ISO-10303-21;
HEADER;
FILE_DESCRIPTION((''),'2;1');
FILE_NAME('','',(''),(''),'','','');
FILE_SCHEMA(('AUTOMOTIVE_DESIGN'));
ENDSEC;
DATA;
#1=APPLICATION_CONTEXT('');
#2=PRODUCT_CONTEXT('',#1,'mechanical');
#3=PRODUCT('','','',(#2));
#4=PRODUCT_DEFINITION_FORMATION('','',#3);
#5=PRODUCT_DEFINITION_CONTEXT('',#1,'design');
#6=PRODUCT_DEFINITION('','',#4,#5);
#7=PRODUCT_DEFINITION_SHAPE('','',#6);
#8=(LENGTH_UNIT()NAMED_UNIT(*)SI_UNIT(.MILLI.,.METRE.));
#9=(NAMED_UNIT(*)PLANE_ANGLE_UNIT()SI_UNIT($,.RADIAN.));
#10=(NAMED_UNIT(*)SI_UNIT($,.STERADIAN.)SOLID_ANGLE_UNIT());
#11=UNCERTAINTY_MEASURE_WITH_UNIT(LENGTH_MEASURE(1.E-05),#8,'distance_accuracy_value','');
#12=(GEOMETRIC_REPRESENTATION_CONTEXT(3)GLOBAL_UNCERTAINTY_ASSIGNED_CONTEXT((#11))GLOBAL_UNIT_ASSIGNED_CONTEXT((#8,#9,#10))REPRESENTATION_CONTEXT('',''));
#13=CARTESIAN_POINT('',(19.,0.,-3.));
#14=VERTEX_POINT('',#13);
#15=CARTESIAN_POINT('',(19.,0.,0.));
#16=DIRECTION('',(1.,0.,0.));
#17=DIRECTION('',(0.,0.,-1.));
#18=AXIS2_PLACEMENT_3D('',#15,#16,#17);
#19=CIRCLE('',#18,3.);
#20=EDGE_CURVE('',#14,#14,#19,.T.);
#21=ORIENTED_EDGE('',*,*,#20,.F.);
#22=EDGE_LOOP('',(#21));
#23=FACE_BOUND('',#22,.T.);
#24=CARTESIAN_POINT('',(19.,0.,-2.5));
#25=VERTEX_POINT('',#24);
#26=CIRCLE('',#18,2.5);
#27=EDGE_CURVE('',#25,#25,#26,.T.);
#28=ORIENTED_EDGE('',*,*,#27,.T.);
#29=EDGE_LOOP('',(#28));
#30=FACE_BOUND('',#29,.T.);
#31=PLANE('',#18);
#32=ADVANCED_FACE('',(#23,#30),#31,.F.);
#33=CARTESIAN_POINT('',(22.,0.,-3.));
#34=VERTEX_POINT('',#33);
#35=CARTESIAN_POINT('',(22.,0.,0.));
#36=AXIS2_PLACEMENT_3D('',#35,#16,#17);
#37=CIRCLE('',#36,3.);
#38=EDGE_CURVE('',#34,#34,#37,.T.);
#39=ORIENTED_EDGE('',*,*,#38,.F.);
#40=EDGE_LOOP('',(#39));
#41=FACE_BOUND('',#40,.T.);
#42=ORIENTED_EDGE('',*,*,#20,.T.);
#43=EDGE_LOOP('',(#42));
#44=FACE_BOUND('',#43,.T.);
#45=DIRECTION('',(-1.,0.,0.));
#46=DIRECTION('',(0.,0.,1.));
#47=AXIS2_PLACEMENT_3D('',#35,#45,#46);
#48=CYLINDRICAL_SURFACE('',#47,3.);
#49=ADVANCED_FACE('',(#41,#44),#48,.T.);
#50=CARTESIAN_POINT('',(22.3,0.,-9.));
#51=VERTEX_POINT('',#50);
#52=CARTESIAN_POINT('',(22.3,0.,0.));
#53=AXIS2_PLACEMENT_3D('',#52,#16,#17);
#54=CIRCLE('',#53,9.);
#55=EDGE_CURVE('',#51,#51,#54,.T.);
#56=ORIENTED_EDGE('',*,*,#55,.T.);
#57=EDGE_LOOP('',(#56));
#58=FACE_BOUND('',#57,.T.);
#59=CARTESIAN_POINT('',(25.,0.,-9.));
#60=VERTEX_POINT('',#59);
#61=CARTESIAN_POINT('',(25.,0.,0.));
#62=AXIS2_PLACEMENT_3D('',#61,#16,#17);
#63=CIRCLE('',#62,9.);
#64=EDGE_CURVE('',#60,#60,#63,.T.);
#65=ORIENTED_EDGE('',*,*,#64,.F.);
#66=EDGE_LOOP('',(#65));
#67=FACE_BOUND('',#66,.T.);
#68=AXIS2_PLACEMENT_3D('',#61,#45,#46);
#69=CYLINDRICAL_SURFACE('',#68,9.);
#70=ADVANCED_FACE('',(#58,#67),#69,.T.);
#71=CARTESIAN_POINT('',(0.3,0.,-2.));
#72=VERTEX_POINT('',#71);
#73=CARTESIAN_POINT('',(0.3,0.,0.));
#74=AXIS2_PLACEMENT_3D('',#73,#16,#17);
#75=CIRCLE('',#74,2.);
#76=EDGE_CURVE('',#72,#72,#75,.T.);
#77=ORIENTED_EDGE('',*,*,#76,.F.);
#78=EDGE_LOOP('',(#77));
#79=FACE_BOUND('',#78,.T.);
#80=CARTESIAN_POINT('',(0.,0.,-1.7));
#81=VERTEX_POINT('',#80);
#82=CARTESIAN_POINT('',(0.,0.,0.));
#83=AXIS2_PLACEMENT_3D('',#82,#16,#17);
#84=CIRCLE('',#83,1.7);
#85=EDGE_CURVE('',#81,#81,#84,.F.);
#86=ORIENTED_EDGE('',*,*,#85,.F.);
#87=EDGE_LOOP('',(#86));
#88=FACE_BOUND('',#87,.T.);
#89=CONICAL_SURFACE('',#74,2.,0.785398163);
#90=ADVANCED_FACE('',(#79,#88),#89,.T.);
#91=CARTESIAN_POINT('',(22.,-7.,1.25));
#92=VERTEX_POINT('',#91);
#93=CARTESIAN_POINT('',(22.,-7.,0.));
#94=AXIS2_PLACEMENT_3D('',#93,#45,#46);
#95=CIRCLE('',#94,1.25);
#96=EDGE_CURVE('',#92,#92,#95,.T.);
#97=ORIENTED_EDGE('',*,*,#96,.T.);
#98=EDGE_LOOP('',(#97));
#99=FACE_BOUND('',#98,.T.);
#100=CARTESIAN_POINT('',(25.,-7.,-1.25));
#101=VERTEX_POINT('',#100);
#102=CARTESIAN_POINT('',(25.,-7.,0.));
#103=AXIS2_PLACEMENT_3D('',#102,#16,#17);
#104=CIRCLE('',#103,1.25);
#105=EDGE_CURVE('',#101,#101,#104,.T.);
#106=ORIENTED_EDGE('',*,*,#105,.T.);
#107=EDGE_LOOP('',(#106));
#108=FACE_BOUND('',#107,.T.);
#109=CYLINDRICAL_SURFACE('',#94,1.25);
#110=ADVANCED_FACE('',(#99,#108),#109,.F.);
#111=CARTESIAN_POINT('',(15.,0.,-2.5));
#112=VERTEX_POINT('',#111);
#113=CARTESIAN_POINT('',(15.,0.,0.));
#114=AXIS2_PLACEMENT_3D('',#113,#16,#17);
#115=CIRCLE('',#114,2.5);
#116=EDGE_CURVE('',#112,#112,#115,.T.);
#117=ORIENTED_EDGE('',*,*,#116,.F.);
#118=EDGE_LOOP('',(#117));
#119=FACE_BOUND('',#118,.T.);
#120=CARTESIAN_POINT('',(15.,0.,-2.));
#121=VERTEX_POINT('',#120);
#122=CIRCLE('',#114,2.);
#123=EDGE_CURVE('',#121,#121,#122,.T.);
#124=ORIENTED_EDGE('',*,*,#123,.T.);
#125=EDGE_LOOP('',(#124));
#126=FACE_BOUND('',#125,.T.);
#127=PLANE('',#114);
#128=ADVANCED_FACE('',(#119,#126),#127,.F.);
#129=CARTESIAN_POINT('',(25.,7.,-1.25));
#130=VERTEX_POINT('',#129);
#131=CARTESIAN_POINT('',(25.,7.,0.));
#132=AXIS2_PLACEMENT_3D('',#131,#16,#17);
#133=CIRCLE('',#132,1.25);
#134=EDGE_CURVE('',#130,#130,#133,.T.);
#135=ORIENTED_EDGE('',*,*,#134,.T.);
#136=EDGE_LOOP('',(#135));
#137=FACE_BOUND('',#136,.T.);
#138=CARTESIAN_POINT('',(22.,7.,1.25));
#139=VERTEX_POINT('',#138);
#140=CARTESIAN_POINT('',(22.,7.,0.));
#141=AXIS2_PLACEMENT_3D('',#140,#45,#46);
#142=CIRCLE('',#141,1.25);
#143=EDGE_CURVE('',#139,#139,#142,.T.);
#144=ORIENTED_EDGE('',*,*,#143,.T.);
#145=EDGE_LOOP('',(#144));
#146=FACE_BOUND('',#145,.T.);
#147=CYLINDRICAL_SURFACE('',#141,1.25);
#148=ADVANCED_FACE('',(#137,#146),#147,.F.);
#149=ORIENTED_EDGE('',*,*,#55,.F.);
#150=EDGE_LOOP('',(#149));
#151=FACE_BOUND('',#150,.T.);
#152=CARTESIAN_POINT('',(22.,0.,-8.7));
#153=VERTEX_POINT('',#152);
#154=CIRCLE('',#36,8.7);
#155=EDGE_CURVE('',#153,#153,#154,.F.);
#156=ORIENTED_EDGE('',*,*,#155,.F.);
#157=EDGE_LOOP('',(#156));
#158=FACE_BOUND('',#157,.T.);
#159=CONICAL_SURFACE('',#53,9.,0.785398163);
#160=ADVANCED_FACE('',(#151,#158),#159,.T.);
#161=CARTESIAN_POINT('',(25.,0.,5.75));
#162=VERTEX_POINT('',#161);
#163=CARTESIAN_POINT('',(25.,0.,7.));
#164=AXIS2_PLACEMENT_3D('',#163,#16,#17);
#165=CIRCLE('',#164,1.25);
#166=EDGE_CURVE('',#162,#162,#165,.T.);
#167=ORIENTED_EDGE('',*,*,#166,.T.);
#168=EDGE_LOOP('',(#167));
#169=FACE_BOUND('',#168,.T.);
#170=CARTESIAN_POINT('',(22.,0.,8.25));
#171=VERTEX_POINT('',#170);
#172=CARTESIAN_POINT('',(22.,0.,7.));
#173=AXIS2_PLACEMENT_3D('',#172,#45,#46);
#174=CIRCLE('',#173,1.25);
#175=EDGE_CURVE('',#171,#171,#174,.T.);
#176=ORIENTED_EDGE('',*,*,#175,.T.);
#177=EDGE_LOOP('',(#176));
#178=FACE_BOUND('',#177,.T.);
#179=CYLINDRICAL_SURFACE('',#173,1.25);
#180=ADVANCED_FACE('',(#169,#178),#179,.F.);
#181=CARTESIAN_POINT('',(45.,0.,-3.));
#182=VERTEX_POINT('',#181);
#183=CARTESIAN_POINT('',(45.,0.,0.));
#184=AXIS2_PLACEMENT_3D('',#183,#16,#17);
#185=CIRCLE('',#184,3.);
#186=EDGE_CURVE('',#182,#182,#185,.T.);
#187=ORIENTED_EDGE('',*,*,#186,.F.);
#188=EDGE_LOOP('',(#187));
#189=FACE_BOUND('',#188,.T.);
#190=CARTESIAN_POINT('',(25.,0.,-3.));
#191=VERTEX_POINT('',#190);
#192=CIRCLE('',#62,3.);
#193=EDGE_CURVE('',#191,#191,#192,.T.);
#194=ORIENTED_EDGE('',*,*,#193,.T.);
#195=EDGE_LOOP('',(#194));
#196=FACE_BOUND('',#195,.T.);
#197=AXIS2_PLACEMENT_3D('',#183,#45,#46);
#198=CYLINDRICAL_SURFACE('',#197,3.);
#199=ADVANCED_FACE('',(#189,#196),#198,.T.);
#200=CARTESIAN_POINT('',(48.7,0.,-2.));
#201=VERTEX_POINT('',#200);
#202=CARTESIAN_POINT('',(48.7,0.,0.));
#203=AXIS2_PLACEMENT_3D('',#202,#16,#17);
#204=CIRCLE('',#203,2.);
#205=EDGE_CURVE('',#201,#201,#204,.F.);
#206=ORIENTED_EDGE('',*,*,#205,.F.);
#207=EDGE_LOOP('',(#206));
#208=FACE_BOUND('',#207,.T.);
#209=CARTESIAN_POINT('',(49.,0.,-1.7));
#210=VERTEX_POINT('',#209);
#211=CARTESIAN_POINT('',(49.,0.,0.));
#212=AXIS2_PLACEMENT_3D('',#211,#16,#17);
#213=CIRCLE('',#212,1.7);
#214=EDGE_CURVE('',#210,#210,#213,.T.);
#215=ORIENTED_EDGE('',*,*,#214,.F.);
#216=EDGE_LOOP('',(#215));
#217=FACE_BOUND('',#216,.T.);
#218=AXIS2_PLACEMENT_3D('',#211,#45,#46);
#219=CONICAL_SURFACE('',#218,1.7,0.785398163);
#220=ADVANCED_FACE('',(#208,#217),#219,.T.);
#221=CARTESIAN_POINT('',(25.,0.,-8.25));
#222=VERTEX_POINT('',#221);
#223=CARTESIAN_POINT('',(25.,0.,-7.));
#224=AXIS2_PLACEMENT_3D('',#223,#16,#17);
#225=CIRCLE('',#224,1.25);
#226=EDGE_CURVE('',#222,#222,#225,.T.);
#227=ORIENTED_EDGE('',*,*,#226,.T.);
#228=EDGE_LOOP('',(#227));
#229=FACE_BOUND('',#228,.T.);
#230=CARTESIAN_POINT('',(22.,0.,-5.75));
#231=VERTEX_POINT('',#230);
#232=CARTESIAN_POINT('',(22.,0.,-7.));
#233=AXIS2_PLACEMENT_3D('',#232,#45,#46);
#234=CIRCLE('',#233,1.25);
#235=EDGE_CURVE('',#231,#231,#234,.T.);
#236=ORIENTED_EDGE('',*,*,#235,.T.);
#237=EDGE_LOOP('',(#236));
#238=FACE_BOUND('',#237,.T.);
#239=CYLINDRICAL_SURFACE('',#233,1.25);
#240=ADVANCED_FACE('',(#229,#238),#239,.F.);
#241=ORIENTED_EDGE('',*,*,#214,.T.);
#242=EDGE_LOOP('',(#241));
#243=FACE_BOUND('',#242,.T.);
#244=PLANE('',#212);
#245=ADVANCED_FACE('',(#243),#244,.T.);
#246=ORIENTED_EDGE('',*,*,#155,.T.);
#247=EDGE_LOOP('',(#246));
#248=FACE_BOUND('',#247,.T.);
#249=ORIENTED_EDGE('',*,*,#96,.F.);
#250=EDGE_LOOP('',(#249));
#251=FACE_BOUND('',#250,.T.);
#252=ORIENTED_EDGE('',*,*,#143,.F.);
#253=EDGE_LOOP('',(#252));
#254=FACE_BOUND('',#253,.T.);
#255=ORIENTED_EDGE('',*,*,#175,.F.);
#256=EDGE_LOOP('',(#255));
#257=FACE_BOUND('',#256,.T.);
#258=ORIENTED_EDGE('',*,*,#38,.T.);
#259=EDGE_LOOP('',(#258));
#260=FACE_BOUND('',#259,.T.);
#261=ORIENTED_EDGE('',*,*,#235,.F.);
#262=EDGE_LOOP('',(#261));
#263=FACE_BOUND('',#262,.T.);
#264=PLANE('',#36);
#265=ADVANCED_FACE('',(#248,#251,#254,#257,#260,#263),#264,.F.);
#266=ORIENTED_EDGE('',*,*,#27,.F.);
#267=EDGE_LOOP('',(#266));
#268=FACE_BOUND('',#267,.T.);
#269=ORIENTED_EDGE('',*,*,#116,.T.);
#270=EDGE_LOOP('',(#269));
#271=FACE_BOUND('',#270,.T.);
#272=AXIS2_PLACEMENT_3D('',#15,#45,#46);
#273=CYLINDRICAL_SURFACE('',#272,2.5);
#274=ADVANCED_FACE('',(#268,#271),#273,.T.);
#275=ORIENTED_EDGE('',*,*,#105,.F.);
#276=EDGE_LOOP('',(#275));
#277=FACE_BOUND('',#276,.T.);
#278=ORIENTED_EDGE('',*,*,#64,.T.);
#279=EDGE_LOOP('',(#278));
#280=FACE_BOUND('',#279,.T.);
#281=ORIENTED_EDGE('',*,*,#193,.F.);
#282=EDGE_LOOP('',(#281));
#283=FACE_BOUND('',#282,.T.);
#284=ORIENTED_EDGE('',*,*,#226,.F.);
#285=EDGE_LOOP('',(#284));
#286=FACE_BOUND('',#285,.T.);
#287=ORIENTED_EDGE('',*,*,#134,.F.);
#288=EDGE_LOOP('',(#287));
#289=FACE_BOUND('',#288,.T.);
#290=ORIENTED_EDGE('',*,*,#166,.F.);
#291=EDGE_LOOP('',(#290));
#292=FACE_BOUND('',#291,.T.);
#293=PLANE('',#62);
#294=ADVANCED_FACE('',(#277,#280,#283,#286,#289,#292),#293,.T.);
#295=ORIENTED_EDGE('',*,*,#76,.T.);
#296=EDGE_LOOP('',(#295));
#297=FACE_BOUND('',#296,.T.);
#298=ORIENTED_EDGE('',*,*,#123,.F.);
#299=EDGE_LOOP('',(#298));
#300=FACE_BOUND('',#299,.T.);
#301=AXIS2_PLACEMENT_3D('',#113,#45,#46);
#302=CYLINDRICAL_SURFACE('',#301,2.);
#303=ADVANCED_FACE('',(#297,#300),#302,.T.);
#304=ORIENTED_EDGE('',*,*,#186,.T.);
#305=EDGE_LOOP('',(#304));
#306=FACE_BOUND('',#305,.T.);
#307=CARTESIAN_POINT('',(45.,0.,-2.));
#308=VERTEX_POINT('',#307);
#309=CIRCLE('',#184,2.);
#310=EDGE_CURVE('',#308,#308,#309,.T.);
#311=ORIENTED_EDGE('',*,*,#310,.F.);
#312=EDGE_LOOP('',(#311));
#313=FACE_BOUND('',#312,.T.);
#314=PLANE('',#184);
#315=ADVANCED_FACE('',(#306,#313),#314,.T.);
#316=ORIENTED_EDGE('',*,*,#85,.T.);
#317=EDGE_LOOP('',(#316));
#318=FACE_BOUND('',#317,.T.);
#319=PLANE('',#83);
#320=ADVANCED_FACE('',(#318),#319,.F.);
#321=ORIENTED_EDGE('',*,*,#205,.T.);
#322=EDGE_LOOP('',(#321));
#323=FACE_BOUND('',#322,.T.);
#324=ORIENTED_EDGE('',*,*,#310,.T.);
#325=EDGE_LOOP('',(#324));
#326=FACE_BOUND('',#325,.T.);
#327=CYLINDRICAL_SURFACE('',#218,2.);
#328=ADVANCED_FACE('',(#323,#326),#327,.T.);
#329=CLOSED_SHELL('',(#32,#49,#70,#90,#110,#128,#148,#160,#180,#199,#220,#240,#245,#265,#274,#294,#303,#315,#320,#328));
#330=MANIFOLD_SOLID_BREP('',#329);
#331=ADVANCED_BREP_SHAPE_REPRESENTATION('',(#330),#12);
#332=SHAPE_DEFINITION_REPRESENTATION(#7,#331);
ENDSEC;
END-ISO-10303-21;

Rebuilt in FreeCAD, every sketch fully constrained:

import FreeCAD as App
import Part
import Sketcher

V = App.Vector
Q = App.Units.Quantity


def edges_at(feature, points):
    """Names of the edges that pass closest to the given points."""
    edges = feature.Shape.Edges
    near = lambda p: min(range(len(edges)), key=lambda i: edges[i].distToShape(Part.Vertex(*p))[0])
    return sorted({f"Edge{near(p) + 1}" for p in points})

doc = App.newDocument("Part")
body = doc.addObject("PartDesign::Body", "Body")

# Sketch on YZ plane
sketch1 = doc.addObject("Sketcher::SketchObject", "Sketch")
body.addObject(sketch1)
sketch1.AttachmentSupport = (doc.YZ_Plane, [""])
sketch1.MapMode = "FlatFace"
sketch1.addGeometry(Part.Circle(V(0, 0, 0), V(0, 0, 1), 2), False)
sketch1.addConstraint(Sketcher.Constraint("Coincident", 0, 3, -1, 1))
sketch1.addConstraint(Sketcher.Constraint("Diameter", 0, Q("4 mm")))
pad1 = doc.addObject("PartDesign::Pad", "Pad")
body.addObject(pad1)
pad1.Profile = sketch1
pad1.Length = 15

# Sketch on YZ plane
sketch2 = doc.addObject("Sketcher::SketchObject", "Sketch001")
body.addObject(sketch2)
sketch2.AttachmentSupport = (doc.YZ_Plane, [""])
sketch2.MapMode = "FlatFace"
sketch2.AttachmentOffset = App.Placement(V(0, 0, 15), App.Rotation())
sketch2.addGeometry(Part.Circle(V(0, 0, 0), V(0, 0, 1), 2.5), False)
sketch2.addConstraint(Sketcher.Constraint("Coincident", 0, 3, -1, 1))
sketch2.addConstraint(Sketcher.Constraint("Diameter", 0, Q("5 mm")))
pad2 = doc.addObject("PartDesign::Pad", "Pad001")
body.addObject(pad2)
pad2.Profile = sketch2
pad2.Length = 4

# Sketch on YZ plane
sketch3 = doc.addObject("Sketcher::SketchObject", "Sketch002")
body.addObject(sketch3)
sketch3.AttachmentSupport = (doc.YZ_Plane, [""])
sketch3.MapMode = "FlatFace"
sketch3.AttachmentOffset = App.Placement(V(0, 0, 19), App.Rotation())
sketch3.addGeometry(Part.Circle(V(0, 0, 0), V(0, 0, 1), 3), False)
sketch3.addConstraint(Sketcher.Constraint("Coincident", 0, 3, -1, 1))
sketch3.addConstraint(Sketcher.Constraint("Diameter", 0, Q("6 mm")))
pad3 = doc.addObject("PartDesign::Pad", "Pad002")
body.addObject(pad3)
pad3.Profile = sketch3
pad3.Length = 3

# Sketch on YZ plane
sketch4 = doc.addObject("Sketcher::SketchObject", "Sketch003")
body.addObject(sketch4)
sketch4.AttachmentSupport = (doc.YZ_Plane, [""])
sketch4.MapMode = "FlatFace"
sketch4.AttachmentOffset = App.Placement(V(0, 0, 22), App.Rotation())
sketch4.addGeometry(Part.Circle(V(0, 0, 0), V(0, 0, 1), 9), False)
sketch4.addConstraint(Sketcher.Constraint("Coincident", 0, 3, -1, 1))
sketch4.addConstraint(Sketcher.Constraint("Diameter", 0, Q("18 mm")))
pad4 = doc.addObject("PartDesign::Pad", "Pad003")
body.addObject(pad4)
pad4.Profile = sketch4
pad4.Length = 3

# Sketch on YZ plane
sketch5 = doc.addObject("Sketcher::SketchObject", "Sketch004")
body.addObject(sketch5)
sketch5.AttachmentSupport = (doc.YZ_Plane, [""])
sketch5.MapMode = "FlatFace"
sketch5.AttachmentOffset = App.Placement(V(0, 0, 25), App.Rotation())
sketch5.addGeometry(Part.Circle(V(0, 0, 0), V(0, 0, 1), 3), False)
sketch5.addConstraint(Sketcher.Constraint("Coincident", 0, 3, -1, 1))
sketch5.addConstraint(Sketcher.Constraint("Diameter", 0, Q("6 mm")))
pad5 = doc.addObject("PartDesign::Pad", "Pad004")
body.addObject(pad5)
pad5.Profile = sketch5
pad5.Length = 20

# Sketch on YZ plane
sketch6 = doc.addObject("Sketcher::SketchObject", "Sketch005")
body.addObject(sketch6)
sketch6.AttachmentSupport = (doc.YZ_Plane, [""])
sketch6.MapMode = "FlatFace"
sketch6.AttachmentOffset = App.Placement(V(0, 0, 45), App.Rotation())
sketch6.addGeometry(Part.Circle(V(0, 0, 0), V(0, 0, 1), 2), False)
sketch6.addConstraint(Sketcher.Constraint("Coincident", 0, 3, -1, 1))
sketch6.addConstraint(Sketcher.Constraint("Diameter", 0, Q("4 mm")))
pad6 = doc.addObject("PartDesign::Pad", "Pad005")
body.addObject(pad6)
pad6.Profile = sketch6
pad6.Length = 4

# Sketch on YZ plane
sketch7 = doc.addObject("Sketcher::SketchObject", "Sketch006")
body.addObject(sketch7)
sketch7.AttachmentSupport = (doc.YZ_Plane, [""])
sketch7.MapMode = "FlatFace"
sketch7.AttachmentOffset = App.Placement(V(0, 0, 22), App.Rotation())
sketch7.addGeometry(Part.Circle(V(7, 0, 0), V(0, 0, 1), 1.2), False)
sketch7.addConstraint(Sketcher.Constraint("PointOnObject", 0, 3, -1))
sketch7.addConstraint(Sketcher.Constraint("Diameter", 0, Q("2.5 mm")))
sketch7.addConstraint(Sketcher.Constraint("DistanceX", -1, 1, 0, 3, Q("7 mm")))
doc.recompute()
hole = doc.addObject("PartDesign::Hole", "Hole")
body.addObject(hole)
hole.Profile = sketch7
hole.ThreadType = "None"
hole.Diameter = 2.5
hole.DepthType = "ThroughAll"
hole.Reversed = True
doc.recompute()

polarpattern = doc.addObject("PartDesign::PolarPattern", "PolarPattern")
body.addObject(polarpattern)
polarpattern.Originals = [hole]
polarpattern.Axis = (doc.X_Axis, [""])
polarpattern.Angle = 360
polarpattern.Occurrences = 4
body.Tip = polarpattern
doc.recompute()

chamfer = doc.addObject("PartDesign::Chamfer", "Chamfer")
body.addObject(chamfer)
chamfer.Base = (polarpattern, edges_at(polarpattern, [(22, 0, 9), (0, 0, 2), (49, 0, 2)]))
chamfer.Size = 0.3

doc.recompute()
